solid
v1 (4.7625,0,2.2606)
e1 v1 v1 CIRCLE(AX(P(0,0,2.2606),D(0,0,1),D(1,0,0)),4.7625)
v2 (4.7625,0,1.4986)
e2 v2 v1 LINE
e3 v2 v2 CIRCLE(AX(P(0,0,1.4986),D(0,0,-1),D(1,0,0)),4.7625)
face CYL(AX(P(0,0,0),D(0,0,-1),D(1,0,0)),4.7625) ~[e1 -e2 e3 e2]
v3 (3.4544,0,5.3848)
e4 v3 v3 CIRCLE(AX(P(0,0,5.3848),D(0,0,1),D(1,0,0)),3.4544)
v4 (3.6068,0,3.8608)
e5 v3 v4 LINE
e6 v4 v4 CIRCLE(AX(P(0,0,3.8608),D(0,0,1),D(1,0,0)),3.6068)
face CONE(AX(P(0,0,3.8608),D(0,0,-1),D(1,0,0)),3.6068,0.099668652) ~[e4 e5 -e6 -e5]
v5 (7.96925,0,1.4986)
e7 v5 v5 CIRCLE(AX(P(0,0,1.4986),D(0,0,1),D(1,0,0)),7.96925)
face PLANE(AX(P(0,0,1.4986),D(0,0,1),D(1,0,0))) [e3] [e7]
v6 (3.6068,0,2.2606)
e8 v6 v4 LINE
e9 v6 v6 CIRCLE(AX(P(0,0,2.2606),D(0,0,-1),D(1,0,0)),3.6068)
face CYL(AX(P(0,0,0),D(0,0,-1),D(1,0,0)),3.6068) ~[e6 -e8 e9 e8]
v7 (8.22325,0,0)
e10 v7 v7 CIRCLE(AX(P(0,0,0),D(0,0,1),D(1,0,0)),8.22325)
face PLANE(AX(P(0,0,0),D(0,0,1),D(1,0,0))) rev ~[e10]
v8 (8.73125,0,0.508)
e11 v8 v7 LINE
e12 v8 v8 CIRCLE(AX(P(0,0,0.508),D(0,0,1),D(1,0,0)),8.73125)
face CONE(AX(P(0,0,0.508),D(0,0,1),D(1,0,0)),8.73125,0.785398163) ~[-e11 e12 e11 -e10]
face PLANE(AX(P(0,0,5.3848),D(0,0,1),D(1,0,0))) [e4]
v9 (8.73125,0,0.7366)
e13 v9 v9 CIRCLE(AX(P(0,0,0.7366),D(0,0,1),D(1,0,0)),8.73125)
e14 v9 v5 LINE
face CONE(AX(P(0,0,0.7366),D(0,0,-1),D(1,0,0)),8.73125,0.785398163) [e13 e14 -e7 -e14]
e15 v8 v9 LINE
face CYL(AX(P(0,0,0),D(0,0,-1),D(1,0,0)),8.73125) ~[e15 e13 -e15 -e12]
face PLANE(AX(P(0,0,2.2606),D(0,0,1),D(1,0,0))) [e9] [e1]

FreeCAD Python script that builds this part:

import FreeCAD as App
import Part
import Sketcher
Q = App.Units.Quantity


def edges_at(feature, points):
    """Names of the edges that pass closest to the given points."""
    edges = feature.Shape.Edges
    near = lambda p: min(range(len(edges)), key=lambda i: edges[i].distToShape(Part.Vertex(*p))[0])
    return sorted({f"Edge{near(p) + 1}" for p in points})

doc = App.newDocument("Part")
body = doc.addObject("PartDesign::Body", "Body")

sketch1 = body.newObject("Sketcher::SketchObject", "Sketch")
sketch1.AttachmentSupport = (doc.getObject("XY_Plane"), [""])
sketch1.MapMode = "FlatFace"
sketch1.addGeometry(Part.Circle(App.Vector(0, 0, 0), App.Vector(0, 0, 1), 8.73125), False)
sketch1.addConstraint([
    Sketcher.Constraint("Coincident", 0, 3, -1, 1),
    Sketcher.Constraint("Diameter", 0, Q("0.6875 in")),
])
pad1 = body.newObject("PartDesign::Pad", "Pad")
pad1.Profile = sketch1
pad1.Length = Q("0.059 in")

sketch2 = body.newObject("Sketcher::SketchObject", "Sketch001")
sketch2.AttachmentSupport = (doc.getObject("XY_Plane"), [""])
sketch2.MapMode = "FlatFace"
sketch2.addGeometry(Part.Circle(App.Vector(0, 0, 0), App.Vector(0, 0, 1), 4.7625), False)
sketch2.addConstraint([
    Sketcher.Constraint("Coincident", 0, 3, -1, 1),
    Sketcher.Constraint("Diameter", 0, Q("0.375 in")),
])
pad2 = body.newObject("PartDesign::Pad", "Pad001")
pad2.Profile = sketch2
pad2.Length = Q("0.089 in")

sketch3 = body.newObject("Sketcher::SketchObject", "Sketch002")
sketch3.AttachmentSupport = (doc.getObject("XY_Plane"), [""])
sketch3.MapMode = "FlatFace"
sketch3.addGeometry(Part.Circle(App.Vector(0, 0, 0), App.Vector(0, 0, 1), 3.6068), False)
sketch3.addConstraint([
    Sketcher.Constraint("Coincident", 0, 3, -1, 1),
    Sketcher.Constraint("Diameter", 0, Q("0.284 in")),
])
pad3 = body.newObject("PartDesign::Pad", "Pad002")
pad3.Profile = sketch3
pad3.Length = Q("0.212 in")
doc.recompute()

chamfer = body.newObject("PartDesign::Chamfer", "Chamfer")
chamfer.Base = (pad3, edges_at(pad3, [(-8.731, 0, 1.499)]))
chamfer.Size = Q("0.03 in")
doc.recompute()

chamfer2 = body.newObject("PartDesign::Chamfer", "Chamfer001")
chamfer2.Base = (chamfer, edges_at(chamfer, [(-8.731, 0, 0)]))
chamfer2.Size = Q("0.02 in")
doc.recompute()

chamfer3 = body.newObject("PartDesign::Chamfer", "Chamfer002")
chamfer3.Base = (chamfer2, edges_at(chamfer2, [(-3.607, 0, 5.385)]))
chamfer3.ChamferType = "Two distances"
chamfer3.Size = Q("0.006 in")
chamfer3.Size2 = Q("0.06 in")
chamfer3.FlipDirection = True

doc.recompute()
